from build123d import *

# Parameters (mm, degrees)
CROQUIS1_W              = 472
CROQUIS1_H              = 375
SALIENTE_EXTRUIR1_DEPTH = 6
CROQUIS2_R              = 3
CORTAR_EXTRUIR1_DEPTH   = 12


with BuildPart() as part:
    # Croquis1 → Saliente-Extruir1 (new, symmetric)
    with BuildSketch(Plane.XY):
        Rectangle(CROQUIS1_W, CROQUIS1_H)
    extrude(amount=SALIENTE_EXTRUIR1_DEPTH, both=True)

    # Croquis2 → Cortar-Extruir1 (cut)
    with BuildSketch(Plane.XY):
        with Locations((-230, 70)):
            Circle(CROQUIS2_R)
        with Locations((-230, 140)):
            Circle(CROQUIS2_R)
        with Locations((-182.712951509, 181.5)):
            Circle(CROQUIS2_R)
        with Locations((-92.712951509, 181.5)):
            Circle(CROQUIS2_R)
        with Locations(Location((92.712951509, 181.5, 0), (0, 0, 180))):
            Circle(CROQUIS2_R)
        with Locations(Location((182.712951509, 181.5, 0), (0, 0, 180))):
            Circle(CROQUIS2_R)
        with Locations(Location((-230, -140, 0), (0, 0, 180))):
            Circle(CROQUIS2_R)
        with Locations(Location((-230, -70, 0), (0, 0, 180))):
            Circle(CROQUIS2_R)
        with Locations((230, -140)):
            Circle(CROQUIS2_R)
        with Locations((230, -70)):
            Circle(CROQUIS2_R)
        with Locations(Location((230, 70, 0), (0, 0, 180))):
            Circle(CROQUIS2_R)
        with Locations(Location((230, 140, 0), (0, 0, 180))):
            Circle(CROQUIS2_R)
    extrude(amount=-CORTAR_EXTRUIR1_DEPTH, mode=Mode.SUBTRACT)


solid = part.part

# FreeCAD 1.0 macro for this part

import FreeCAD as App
import Part
import Sketcher

V = App.Vector
Q = App.Units.Quantity


def add_polygon(sketch, points):
    """Adds a closed chain of lines whose ends are joined by coincident constraints."""
    first, n = sketch.GeometryCount, len(points)
    for a, b in zip(points, points[1:] + points[:1]):
        sketch.addGeometry(Part.LineSegment(App.Vector(*a, 0), App.Vector(*b, 0)), False)
    for i in range(n):
        sketch.addConstraint(Sketcher.Constraint("Coincident", first + i, 2, first + (i + 1) % n, 1))

doc = App.newDocument("Part")
body = doc.addObject("PartDesign::Body", "Body")

# Sketch on XY plane
sketch1 = doc.addObject("Sketcher::SketchObject", "Sketch")
body.addObject(sketch1)
sketch1.AttachmentSupport = (doc.XY_Plane, [""])
sketch1.MapMode = "FlatFace"
add_polygon(sketch1, [(-236, 187.5), (-236, -187.5), (236, -187.5), (236, 187.5)])  # lines 0-3
sketch1.addConstraint(Sketcher.Constraint("Vertical", 0))
sketch1.addConstraint(Sketcher.Constraint("Horizontal", 1))
sketch1.addConstraint(Sketcher.Constraint("Vertical", 2))
sketch1.addConstraint(Sketcher.Constraint("Horizontal", 3))
sketch1.addConstraint(Sketcher.Constraint("Symmetric", 0, 2, 2, 2, -1, 1))
sketch1.addConstraint(Sketcher.Constraint("DistanceX", 1, 1, 1, 2, Q("472 mm")))
sketch1.addConstraint(Sketcher.Constraint("DistanceY", 0, 2, 0, 1, Q("375 mm")))
pad1 = doc.addObject("PartDesign::Pad", "Pad")
body.addObject(pad1)
pad1.Profile = sketch1
pad1.Length = 12
pad1.Midplane = True

# Sketch on XY plane
sketch2 = doc.addObject("Sketcher::SketchObject", "Sketch001")
body.addObject(sketch2)
sketch2.AttachmentSupport = (doc.XY_Plane, [""])
sketch2.MapMode = "FlatFace"
sketch2.addGeometry(Part.Circle(V(-230, 70, 0), V(0, 0, 1), 3), False)
sketch2.addGeometry(Part.Circle(V(-230, 140, 0), V(0, 0, 1), 3), False)
sketch2.addGeometry(Part.Circle(V(-182.712952, 181.5, 0), V(0, 0, 1), 3), False)
sketch2.addGeometry(Part.Circle(V(-92.712952, 181.5, 0), V(0, 0, 1), 3), False)
sketch2.addGeometry(Part.Circle(V(92.712952, 181.5, 0), V(0, 0, 1), 3), False)
sketch2.addGeometry(Part.Circle(V(182.712952, 181.5, 0), V(0, 0, 1), 3), False)
sketch2.addGeometry(Part.Circle(V(-230, -140, 0), V(0, 0, 1), 3), False)
sketch2.addGeometry(Part.Circle(V(-230, -70, 0), V(0, 0, 1), 3), False)
sketch2.addGeometry(Part.Circle(V(230, -140, 0), V(0, 0, 1), 3), False)
sketch2.addGeometry(Part.Circle(V(230, -70, 0), V(0, 0, 1), 3), False)
sketch2.addGeometry(Part.Circle(V(230, 70, 0), V(0, 0, 1), 3), False)
sketch2.addGeometry(Part.Circle(V(230, 140, 0), V(0, 0, 1), 3), False)
sketch2.addConstraint(Sketcher.Constraint("Equal", 0, 1))
sketch2.addConstraint(Sketcher.Constraint("Equal", 1, 2))
sketch2.addConstraint(Sketcher.Constraint("Equal", 2, 3))
sketch2.addConstraint(Sketcher.Constraint("Equal", 3, 4))
sketch2.addConstraint(Sketcher.Constraint("Equal", 4, 5))
sketch2.addConstraint(Sketcher.Constraint("Equal", 5, 6))
sketch2.addConstraint(Sketcher.Constraint("Equal", 6, 7))
sketch2.addConstraint(Sketcher.Constraint("Equal", 7, 8))
sketch2.addConstraint(Sketcher.Constraint("Equal", 8, 9))
sketch2.addConstraint(Sketcher.Constraint("Equal", 9, 10))
sketch2.addConstraint(Sketcher.Constraint("Equal", 10, 11))
sketch2.addConstraint(Sketcher.Constraint("Symmetric", 1, 3, 8, 3, -1, 1))
sketch2.addConstraint(Sketcher.Constraint("Symmetric", 0, 3, 9, 3, -1, 1))
sketch2.addConstraint(Sketcher.Constraint("Symmetric", 7, 3, 10, 3, -1, 1))
sketch2.addConstraint(Sketcher.Constraint("Symmetric", 6, 3, 11, 3, -1, 1))
sketch2.addConstraint(Sketcher.Constraint("Symmetric", 3, 3, 4, 3, -2))
sketch2.addConstraint(Sketcher.Constraint("Symmetric", 2, 3, 5, 3, -2))
sketch2.addConstraint(Sketcher.Constraint("Symmetric", 6, 3, 8, 3, -2))
sketch2.addConstraint(Sketcher.Constraint("Symmetric", 7, 3, 9, 3, -2))
sketch2.addConstraint(Sketcher.Constraint("Horizontal", 2, 3, 3, 3))
sketch2.addConstraint(Sketcher.Constraint("Vertical", 0, 3, 1, 3))
sketch2.addConstraint(Sketcher.Constraint("Diameter", 0, Q("6 mm")))
sketch2.addConstraint(Sketcher.Constraint("DistanceX", 0, 3, -1, 1, Q("230 mm")))
sketch2.addConstraint(Sketcher.Constraint("DistanceY", -1, 1, 0, 3, Q("70 mm")))
sketch2.addConstraint(Sketcher.Constraint("DistanceY", -1, 1, 1, 3, Q("140 mm")))
sketch2.addConstraint(Sketcher.Constraint("DistanceX", 2, 3, 3, 3, Q("90 mm")))
sketch2.addConstraint(Sketcher.Constraint("DistanceY", -1, 1, 2, 3, Q("181.5 mm")))
sketch2.addConstraint(Sketcher.Constraint("DistanceX", 2, 3, -1, 1, Q("182.712952 mm")))
pocket1 = doc.addObject("PartDesign::Pocket", "Pocket")
body.addObject(pocket1)
pocket1.Profile = sketch2
pocket1.Length = 12

doc.recompute()
